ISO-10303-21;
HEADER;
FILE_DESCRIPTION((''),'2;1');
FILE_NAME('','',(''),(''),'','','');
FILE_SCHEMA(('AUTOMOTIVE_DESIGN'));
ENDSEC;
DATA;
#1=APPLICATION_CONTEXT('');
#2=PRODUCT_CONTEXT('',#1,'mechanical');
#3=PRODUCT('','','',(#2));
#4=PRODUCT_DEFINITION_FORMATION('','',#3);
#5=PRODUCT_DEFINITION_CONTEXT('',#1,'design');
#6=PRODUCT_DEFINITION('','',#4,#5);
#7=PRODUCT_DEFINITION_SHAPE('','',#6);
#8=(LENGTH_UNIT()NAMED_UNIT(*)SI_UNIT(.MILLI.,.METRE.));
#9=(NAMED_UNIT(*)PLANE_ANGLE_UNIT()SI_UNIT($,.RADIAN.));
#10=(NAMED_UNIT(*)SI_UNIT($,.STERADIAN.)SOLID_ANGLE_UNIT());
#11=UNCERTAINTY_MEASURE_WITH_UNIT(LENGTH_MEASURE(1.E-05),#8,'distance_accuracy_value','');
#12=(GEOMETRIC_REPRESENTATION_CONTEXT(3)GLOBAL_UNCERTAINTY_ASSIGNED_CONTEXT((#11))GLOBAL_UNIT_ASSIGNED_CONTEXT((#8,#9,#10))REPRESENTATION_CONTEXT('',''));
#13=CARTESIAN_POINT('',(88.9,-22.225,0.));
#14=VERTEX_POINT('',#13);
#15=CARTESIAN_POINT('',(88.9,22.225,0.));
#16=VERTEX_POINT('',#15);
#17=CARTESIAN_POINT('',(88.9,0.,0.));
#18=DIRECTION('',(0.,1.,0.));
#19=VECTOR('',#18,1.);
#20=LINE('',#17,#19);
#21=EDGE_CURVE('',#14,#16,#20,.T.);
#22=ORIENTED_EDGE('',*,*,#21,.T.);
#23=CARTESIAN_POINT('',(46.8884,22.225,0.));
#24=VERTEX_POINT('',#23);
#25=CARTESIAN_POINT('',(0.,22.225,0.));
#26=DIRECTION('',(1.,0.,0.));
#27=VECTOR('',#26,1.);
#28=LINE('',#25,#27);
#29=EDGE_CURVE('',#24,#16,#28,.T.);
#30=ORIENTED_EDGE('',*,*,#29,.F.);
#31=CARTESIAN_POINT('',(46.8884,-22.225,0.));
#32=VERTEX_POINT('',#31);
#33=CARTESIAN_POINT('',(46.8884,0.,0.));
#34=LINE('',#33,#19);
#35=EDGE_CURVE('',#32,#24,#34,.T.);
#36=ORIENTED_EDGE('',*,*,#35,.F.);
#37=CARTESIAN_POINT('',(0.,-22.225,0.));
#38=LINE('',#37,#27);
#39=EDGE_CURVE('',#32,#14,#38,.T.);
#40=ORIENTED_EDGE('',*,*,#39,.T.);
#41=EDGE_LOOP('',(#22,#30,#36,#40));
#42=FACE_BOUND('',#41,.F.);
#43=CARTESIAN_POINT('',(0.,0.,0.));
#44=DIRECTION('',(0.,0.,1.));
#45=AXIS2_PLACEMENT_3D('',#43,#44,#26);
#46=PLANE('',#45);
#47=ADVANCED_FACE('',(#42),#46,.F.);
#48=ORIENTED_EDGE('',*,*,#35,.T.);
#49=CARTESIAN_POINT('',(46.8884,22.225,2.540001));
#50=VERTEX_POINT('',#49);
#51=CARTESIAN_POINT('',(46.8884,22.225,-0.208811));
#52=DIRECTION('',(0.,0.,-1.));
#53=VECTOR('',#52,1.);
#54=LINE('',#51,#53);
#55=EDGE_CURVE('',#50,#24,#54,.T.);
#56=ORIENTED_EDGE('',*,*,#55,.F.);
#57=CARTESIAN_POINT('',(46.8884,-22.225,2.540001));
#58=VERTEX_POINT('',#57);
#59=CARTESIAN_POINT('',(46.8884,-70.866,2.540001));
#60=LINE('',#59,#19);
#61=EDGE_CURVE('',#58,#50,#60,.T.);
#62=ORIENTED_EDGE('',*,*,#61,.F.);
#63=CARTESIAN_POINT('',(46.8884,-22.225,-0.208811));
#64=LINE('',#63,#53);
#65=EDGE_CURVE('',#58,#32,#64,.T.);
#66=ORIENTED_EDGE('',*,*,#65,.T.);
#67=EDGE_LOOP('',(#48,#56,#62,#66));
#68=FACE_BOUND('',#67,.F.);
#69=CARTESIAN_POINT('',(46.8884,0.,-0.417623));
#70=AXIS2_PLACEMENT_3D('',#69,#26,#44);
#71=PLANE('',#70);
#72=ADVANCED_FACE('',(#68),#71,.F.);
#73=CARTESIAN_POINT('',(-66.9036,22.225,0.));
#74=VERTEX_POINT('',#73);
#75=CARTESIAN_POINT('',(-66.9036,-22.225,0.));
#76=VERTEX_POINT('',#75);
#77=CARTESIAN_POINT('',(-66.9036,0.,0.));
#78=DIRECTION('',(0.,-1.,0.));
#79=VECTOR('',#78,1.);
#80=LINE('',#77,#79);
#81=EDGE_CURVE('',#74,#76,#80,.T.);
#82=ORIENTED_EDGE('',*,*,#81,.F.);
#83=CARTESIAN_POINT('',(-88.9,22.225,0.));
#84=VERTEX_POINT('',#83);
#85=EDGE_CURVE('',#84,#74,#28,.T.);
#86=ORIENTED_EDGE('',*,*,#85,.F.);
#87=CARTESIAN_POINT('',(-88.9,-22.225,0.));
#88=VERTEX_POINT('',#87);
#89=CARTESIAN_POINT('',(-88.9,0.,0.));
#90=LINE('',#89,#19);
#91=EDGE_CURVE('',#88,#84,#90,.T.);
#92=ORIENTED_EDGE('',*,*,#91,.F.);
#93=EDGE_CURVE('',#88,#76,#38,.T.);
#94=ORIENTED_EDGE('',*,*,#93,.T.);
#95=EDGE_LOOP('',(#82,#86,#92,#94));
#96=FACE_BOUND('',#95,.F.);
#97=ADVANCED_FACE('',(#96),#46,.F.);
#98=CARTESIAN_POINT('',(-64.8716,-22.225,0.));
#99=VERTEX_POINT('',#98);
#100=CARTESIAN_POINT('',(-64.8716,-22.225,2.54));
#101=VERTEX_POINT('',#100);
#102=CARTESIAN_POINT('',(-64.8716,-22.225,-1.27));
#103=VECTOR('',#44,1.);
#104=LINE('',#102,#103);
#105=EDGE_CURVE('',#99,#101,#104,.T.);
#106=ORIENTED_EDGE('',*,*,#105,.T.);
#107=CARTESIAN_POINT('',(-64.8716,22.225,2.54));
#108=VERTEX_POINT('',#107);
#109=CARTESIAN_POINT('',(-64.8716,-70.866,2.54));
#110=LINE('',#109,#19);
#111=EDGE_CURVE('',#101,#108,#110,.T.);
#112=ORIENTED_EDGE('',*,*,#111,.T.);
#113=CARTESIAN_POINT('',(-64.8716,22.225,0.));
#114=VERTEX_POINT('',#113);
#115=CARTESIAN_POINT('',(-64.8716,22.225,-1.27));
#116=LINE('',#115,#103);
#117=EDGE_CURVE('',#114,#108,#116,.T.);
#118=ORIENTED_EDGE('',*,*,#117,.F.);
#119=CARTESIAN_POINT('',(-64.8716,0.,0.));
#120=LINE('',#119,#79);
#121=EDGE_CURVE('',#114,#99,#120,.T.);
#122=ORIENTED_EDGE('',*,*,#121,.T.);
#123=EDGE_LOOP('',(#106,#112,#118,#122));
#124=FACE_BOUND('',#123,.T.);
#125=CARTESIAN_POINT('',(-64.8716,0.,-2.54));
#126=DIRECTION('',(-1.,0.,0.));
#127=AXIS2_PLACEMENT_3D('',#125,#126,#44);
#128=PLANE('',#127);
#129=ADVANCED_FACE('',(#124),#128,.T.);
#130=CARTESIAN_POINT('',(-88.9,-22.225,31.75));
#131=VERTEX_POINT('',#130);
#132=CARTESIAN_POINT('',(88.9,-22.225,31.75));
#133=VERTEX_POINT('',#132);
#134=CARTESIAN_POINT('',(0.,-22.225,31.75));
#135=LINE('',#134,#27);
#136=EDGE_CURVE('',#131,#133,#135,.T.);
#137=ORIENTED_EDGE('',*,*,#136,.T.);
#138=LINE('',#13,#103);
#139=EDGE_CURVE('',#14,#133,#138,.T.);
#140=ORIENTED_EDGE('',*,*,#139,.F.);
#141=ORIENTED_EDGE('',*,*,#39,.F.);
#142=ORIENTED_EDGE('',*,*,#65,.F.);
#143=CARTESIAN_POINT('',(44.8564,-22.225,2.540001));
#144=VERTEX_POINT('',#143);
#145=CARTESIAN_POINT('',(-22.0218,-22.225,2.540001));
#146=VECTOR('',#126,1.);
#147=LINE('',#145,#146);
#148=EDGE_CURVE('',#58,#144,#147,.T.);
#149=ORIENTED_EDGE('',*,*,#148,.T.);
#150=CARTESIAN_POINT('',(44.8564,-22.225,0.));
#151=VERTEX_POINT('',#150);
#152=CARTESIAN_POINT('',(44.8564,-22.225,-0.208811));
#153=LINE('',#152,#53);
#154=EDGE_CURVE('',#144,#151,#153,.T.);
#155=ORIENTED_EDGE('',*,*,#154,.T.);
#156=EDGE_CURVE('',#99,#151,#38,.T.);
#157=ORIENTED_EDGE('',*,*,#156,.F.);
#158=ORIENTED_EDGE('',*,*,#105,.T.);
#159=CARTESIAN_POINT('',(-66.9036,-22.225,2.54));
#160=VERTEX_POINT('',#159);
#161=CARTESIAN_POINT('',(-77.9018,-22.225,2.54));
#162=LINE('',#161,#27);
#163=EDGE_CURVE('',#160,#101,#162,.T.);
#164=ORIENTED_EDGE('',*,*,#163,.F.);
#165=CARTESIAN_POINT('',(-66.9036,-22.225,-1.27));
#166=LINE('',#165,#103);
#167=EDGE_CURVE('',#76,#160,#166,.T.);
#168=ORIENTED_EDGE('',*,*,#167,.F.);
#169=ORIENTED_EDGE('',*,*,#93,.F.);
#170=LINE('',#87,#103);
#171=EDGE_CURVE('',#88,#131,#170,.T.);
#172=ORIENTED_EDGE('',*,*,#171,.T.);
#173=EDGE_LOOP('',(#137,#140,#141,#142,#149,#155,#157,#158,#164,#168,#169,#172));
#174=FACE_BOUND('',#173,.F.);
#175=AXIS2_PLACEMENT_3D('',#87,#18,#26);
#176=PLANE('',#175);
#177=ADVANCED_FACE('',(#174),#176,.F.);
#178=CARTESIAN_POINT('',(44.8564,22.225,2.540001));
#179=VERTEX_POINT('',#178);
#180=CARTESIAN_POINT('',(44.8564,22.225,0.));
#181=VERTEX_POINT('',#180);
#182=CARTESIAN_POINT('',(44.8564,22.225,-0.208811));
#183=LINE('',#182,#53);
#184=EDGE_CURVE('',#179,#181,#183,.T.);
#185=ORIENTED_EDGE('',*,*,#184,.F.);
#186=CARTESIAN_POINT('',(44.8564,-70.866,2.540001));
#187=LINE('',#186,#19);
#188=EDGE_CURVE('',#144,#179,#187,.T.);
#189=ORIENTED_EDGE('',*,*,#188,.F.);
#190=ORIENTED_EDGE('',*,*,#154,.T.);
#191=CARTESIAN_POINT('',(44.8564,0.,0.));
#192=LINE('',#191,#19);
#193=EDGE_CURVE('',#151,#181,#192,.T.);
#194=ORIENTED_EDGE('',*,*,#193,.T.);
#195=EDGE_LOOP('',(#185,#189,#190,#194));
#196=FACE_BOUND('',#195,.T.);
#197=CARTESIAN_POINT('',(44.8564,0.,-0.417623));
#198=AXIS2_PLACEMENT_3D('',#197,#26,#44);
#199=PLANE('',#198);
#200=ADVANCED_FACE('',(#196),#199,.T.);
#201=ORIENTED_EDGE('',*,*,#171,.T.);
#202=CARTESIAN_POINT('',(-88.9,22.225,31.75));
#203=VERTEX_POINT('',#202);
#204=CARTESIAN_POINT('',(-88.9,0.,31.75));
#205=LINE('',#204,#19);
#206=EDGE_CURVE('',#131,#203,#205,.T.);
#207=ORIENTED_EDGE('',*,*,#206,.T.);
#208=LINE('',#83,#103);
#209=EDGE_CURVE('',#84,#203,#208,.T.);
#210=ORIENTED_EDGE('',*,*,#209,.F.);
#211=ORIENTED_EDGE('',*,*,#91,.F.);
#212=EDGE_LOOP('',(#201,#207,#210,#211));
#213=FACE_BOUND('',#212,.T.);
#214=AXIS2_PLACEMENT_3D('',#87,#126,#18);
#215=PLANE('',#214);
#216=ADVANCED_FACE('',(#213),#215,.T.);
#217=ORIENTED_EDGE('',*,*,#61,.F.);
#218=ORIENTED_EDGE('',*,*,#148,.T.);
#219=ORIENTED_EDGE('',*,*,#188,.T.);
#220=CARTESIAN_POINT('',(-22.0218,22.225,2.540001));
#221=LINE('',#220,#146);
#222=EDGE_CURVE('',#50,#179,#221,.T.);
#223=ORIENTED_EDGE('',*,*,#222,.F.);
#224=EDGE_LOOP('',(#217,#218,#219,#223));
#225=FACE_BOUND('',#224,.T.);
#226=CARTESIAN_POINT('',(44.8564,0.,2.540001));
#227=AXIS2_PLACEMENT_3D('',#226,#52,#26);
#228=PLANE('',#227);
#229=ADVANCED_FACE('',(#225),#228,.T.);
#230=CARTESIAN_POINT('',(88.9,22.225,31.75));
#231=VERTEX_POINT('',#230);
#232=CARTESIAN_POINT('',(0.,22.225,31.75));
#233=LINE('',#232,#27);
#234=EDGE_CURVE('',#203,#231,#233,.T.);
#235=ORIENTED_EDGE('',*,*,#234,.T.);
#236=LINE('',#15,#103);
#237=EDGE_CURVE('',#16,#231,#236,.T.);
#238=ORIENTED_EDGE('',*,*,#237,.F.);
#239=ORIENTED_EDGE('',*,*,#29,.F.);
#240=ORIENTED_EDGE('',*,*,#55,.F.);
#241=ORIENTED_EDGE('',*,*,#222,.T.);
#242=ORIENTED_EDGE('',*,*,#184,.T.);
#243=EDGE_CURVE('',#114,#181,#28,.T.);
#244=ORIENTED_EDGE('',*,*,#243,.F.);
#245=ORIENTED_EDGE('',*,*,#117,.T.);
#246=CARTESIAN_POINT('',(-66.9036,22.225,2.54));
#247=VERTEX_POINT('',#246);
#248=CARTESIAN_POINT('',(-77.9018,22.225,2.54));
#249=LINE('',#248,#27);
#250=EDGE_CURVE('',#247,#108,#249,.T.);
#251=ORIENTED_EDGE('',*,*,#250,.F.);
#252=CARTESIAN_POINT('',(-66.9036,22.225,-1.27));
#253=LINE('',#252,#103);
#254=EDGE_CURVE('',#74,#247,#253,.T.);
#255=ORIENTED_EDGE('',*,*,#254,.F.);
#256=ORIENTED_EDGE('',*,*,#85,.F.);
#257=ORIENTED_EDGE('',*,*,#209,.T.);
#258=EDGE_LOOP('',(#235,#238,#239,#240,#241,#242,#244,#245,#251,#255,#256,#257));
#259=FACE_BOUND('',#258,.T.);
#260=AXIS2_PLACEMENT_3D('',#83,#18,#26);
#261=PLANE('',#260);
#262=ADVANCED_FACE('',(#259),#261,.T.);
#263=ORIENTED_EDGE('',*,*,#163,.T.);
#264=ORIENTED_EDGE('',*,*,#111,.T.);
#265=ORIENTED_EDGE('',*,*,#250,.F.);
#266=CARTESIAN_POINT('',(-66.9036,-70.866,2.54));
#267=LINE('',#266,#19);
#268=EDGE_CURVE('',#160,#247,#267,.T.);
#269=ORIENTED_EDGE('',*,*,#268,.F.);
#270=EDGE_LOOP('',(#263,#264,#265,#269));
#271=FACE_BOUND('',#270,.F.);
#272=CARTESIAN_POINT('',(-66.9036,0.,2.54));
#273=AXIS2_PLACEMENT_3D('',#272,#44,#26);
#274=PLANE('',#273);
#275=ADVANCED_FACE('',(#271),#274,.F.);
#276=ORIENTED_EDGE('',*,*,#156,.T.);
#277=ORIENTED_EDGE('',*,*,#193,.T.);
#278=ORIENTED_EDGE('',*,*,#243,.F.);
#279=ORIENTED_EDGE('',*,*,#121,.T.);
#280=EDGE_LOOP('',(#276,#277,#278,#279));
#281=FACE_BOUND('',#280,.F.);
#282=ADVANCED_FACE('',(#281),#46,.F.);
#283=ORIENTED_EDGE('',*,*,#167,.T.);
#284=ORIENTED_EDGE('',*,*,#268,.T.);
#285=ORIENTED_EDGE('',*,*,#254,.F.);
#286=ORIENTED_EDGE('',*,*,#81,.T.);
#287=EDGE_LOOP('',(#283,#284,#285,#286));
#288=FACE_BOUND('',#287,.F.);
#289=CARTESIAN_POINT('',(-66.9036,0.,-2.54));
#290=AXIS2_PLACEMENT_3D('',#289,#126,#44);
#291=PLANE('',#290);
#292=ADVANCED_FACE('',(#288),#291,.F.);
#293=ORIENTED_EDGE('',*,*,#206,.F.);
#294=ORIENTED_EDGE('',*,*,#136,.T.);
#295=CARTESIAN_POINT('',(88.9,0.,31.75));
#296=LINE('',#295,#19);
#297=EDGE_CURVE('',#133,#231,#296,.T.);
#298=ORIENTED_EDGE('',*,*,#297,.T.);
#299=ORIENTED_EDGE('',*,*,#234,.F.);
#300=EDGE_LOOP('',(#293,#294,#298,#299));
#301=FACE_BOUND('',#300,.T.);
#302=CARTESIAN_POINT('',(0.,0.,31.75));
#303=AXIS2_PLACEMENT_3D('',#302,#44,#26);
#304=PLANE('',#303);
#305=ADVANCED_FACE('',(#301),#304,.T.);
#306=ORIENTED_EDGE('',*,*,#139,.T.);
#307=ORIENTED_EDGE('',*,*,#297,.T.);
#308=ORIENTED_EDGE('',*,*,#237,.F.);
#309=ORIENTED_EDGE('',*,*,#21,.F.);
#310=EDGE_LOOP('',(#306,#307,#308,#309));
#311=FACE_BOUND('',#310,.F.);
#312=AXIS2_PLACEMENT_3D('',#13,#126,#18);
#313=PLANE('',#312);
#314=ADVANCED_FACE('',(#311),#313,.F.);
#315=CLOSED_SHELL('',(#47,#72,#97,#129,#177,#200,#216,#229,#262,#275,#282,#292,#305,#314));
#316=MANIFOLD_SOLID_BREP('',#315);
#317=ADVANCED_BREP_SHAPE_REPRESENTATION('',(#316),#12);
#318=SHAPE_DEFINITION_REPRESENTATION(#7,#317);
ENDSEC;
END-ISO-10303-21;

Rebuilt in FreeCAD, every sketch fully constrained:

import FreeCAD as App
import Part
import Sketcher
from FreeCAD import Vector
Q = App.Units.Quantity


def add_polygon(sketch, points):
    """Adds a closed chain of lines whose ends are joined by coincident constraints."""
    first, n = sketch.GeometryCount, len(points)
    for a, b in zip(points, points[1:] + points[:1]):
        sketch.addGeometry(Part.LineSegment(App.Vector(*a, 0), App.Vector(*b, 0)), False)
    for i in range(n):
        sketch.addConstraint(Sketcher.Constraint("Coincident", first + i, 2, first + (i + 1) % n, 1))

doc = App.newDocument("Part")
params = doc.addObject("Spreadsheet::Sheet", "Params")
for row, (alias, value) in enumerate([
    ("sketch1_width", "7 in"),
    ("sketch1_height", "1.75 in"),
    ("pad1_length", "1.25 in"),
    ("sketch2_height", "0.2 in"),
    ("sketch2_width", "0.08 in"),
    ("pocket1_length", "5.58 in"),
], start=1):
    params.set(f"A{row}", alias)
    params.set(f"B{row}", "=" + value)
    params.setAlias(f"B{row}", alias)

body = doc.addObject("PartDesign::Body", "Body")

# Sketch on XY plane
sketch1 = body.newObject("Sketcher::SketchObject", "Sketch")
sketch1.AttachmentSupport = (doc.getObject("XY_Plane"), [""])
sketch1.MapMode = "FlatFace"
add_polygon(sketch1, [(-88.9, 22.225), (-88.9, -22.225), (88.9, -22.225), (88.9, 22.225)])  # lines 0-3
sketch1.addConstraint([
    Sketcher.Constraint("Vertical", 0),
    Sketcher.Constraint("Horizontal", 1),
    Sketcher.Constraint("Vertical", 2),
    Sketcher.Constraint("Horizontal", 3),
    Sketcher.Constraint("Symmetric", 0, 2, 2, 2, -1, 1),
    Sketcher.Constraint("DistanceX", 1, 1, 1, 2, Q("7 in")),
    Sketcher.Constraint("DistanceY", 0, 2, 0, 1, Q("1.75 in")),
])
sketch1.setExpression("Constraints[9]", "Params.sketch1_width")
sketch1.setExpression("Constraints[10]", "Params.sketch1_height")
pad1 = body.newObject("PartDesign::Pad", "Pad")
pad1.Profile = sketch1
pad1.setExpression("Length", "Params.pad1_length")

# Sketch on XZ plane
sketch2 = body.newObject("Sketcher::SketchObject", "Sketch001")
sketch2.AttachmentSupport = (doc.getObject("XZ_Plane"), [""])
sketch2.MapMode = "FlatFace"
add_polygon(sketch2, [(-66.9036, 2.54), (-66.9036, -2.54), (-64.8716, -2.54), (-64.8716, 2.54)])  # lines 0-3
add_polygon(sketch2, [(44.8564, 2.540001), (44.8564, -0.417623), (46.8884, -0.417623), (46.8884, 2.540001)])  # lines 4-7
sketch2.addConstraint([
    Sketcher.Constraint("Vertical", 0),
    Sketcher.Constraint("Horizontal", 1),
    Sketcher.Constraint("Vertical", 2),
    Sketcher.Constraint("Horizontal", 3),
    Sketcher.Constraint("Vertical", 4),
    Sketcher.Constraint("Horizontal", 5),
    Sketcher.Constraint("Vertical", 6),
    Sketcher.Constraint("Horizontal", 7),
    Sketcher.Constraint("Horizontal", 3, 2, 6, 2),
    Sketcher.Constraint("Equal", 3, 5),
    Sketcher.Constraint("DistanceY", 0, 2, 0, 1, Q("0.2 in")),
    Sketcher.Constraint("DistanceX", 1, 1, 1, 2, Q("0.08 in")),
    Sketcher.Constraint("DistanceY", 0, 2, -1, 1, Q("0.1 in")),
    Sketcher.Constraint("DistanceX", 0, 2, 4, 2, Q("4.4 in")),
    Sketcher.Constraint("DistanceX", 0, 2, -1, 1, Q("2.634 in")),
    Sketcher.Constraint("DistanceY", 4, 2, 4, 1, Q("2.957623 mm")),
])
sketch2.setExpression("Constraints[18]", "Params.sketch2_height")
sketch2.setExpression("Constraints[19]", "Params.sketch2_width")
pocket1 = body.newObject("PartDesign::Pocket", "Pocket")
pocket1.Profile = sketch2
pocket1.setExpression("Length", "Params.pocket1_length")
pocket1.Midplane = True

doc.recompute()
